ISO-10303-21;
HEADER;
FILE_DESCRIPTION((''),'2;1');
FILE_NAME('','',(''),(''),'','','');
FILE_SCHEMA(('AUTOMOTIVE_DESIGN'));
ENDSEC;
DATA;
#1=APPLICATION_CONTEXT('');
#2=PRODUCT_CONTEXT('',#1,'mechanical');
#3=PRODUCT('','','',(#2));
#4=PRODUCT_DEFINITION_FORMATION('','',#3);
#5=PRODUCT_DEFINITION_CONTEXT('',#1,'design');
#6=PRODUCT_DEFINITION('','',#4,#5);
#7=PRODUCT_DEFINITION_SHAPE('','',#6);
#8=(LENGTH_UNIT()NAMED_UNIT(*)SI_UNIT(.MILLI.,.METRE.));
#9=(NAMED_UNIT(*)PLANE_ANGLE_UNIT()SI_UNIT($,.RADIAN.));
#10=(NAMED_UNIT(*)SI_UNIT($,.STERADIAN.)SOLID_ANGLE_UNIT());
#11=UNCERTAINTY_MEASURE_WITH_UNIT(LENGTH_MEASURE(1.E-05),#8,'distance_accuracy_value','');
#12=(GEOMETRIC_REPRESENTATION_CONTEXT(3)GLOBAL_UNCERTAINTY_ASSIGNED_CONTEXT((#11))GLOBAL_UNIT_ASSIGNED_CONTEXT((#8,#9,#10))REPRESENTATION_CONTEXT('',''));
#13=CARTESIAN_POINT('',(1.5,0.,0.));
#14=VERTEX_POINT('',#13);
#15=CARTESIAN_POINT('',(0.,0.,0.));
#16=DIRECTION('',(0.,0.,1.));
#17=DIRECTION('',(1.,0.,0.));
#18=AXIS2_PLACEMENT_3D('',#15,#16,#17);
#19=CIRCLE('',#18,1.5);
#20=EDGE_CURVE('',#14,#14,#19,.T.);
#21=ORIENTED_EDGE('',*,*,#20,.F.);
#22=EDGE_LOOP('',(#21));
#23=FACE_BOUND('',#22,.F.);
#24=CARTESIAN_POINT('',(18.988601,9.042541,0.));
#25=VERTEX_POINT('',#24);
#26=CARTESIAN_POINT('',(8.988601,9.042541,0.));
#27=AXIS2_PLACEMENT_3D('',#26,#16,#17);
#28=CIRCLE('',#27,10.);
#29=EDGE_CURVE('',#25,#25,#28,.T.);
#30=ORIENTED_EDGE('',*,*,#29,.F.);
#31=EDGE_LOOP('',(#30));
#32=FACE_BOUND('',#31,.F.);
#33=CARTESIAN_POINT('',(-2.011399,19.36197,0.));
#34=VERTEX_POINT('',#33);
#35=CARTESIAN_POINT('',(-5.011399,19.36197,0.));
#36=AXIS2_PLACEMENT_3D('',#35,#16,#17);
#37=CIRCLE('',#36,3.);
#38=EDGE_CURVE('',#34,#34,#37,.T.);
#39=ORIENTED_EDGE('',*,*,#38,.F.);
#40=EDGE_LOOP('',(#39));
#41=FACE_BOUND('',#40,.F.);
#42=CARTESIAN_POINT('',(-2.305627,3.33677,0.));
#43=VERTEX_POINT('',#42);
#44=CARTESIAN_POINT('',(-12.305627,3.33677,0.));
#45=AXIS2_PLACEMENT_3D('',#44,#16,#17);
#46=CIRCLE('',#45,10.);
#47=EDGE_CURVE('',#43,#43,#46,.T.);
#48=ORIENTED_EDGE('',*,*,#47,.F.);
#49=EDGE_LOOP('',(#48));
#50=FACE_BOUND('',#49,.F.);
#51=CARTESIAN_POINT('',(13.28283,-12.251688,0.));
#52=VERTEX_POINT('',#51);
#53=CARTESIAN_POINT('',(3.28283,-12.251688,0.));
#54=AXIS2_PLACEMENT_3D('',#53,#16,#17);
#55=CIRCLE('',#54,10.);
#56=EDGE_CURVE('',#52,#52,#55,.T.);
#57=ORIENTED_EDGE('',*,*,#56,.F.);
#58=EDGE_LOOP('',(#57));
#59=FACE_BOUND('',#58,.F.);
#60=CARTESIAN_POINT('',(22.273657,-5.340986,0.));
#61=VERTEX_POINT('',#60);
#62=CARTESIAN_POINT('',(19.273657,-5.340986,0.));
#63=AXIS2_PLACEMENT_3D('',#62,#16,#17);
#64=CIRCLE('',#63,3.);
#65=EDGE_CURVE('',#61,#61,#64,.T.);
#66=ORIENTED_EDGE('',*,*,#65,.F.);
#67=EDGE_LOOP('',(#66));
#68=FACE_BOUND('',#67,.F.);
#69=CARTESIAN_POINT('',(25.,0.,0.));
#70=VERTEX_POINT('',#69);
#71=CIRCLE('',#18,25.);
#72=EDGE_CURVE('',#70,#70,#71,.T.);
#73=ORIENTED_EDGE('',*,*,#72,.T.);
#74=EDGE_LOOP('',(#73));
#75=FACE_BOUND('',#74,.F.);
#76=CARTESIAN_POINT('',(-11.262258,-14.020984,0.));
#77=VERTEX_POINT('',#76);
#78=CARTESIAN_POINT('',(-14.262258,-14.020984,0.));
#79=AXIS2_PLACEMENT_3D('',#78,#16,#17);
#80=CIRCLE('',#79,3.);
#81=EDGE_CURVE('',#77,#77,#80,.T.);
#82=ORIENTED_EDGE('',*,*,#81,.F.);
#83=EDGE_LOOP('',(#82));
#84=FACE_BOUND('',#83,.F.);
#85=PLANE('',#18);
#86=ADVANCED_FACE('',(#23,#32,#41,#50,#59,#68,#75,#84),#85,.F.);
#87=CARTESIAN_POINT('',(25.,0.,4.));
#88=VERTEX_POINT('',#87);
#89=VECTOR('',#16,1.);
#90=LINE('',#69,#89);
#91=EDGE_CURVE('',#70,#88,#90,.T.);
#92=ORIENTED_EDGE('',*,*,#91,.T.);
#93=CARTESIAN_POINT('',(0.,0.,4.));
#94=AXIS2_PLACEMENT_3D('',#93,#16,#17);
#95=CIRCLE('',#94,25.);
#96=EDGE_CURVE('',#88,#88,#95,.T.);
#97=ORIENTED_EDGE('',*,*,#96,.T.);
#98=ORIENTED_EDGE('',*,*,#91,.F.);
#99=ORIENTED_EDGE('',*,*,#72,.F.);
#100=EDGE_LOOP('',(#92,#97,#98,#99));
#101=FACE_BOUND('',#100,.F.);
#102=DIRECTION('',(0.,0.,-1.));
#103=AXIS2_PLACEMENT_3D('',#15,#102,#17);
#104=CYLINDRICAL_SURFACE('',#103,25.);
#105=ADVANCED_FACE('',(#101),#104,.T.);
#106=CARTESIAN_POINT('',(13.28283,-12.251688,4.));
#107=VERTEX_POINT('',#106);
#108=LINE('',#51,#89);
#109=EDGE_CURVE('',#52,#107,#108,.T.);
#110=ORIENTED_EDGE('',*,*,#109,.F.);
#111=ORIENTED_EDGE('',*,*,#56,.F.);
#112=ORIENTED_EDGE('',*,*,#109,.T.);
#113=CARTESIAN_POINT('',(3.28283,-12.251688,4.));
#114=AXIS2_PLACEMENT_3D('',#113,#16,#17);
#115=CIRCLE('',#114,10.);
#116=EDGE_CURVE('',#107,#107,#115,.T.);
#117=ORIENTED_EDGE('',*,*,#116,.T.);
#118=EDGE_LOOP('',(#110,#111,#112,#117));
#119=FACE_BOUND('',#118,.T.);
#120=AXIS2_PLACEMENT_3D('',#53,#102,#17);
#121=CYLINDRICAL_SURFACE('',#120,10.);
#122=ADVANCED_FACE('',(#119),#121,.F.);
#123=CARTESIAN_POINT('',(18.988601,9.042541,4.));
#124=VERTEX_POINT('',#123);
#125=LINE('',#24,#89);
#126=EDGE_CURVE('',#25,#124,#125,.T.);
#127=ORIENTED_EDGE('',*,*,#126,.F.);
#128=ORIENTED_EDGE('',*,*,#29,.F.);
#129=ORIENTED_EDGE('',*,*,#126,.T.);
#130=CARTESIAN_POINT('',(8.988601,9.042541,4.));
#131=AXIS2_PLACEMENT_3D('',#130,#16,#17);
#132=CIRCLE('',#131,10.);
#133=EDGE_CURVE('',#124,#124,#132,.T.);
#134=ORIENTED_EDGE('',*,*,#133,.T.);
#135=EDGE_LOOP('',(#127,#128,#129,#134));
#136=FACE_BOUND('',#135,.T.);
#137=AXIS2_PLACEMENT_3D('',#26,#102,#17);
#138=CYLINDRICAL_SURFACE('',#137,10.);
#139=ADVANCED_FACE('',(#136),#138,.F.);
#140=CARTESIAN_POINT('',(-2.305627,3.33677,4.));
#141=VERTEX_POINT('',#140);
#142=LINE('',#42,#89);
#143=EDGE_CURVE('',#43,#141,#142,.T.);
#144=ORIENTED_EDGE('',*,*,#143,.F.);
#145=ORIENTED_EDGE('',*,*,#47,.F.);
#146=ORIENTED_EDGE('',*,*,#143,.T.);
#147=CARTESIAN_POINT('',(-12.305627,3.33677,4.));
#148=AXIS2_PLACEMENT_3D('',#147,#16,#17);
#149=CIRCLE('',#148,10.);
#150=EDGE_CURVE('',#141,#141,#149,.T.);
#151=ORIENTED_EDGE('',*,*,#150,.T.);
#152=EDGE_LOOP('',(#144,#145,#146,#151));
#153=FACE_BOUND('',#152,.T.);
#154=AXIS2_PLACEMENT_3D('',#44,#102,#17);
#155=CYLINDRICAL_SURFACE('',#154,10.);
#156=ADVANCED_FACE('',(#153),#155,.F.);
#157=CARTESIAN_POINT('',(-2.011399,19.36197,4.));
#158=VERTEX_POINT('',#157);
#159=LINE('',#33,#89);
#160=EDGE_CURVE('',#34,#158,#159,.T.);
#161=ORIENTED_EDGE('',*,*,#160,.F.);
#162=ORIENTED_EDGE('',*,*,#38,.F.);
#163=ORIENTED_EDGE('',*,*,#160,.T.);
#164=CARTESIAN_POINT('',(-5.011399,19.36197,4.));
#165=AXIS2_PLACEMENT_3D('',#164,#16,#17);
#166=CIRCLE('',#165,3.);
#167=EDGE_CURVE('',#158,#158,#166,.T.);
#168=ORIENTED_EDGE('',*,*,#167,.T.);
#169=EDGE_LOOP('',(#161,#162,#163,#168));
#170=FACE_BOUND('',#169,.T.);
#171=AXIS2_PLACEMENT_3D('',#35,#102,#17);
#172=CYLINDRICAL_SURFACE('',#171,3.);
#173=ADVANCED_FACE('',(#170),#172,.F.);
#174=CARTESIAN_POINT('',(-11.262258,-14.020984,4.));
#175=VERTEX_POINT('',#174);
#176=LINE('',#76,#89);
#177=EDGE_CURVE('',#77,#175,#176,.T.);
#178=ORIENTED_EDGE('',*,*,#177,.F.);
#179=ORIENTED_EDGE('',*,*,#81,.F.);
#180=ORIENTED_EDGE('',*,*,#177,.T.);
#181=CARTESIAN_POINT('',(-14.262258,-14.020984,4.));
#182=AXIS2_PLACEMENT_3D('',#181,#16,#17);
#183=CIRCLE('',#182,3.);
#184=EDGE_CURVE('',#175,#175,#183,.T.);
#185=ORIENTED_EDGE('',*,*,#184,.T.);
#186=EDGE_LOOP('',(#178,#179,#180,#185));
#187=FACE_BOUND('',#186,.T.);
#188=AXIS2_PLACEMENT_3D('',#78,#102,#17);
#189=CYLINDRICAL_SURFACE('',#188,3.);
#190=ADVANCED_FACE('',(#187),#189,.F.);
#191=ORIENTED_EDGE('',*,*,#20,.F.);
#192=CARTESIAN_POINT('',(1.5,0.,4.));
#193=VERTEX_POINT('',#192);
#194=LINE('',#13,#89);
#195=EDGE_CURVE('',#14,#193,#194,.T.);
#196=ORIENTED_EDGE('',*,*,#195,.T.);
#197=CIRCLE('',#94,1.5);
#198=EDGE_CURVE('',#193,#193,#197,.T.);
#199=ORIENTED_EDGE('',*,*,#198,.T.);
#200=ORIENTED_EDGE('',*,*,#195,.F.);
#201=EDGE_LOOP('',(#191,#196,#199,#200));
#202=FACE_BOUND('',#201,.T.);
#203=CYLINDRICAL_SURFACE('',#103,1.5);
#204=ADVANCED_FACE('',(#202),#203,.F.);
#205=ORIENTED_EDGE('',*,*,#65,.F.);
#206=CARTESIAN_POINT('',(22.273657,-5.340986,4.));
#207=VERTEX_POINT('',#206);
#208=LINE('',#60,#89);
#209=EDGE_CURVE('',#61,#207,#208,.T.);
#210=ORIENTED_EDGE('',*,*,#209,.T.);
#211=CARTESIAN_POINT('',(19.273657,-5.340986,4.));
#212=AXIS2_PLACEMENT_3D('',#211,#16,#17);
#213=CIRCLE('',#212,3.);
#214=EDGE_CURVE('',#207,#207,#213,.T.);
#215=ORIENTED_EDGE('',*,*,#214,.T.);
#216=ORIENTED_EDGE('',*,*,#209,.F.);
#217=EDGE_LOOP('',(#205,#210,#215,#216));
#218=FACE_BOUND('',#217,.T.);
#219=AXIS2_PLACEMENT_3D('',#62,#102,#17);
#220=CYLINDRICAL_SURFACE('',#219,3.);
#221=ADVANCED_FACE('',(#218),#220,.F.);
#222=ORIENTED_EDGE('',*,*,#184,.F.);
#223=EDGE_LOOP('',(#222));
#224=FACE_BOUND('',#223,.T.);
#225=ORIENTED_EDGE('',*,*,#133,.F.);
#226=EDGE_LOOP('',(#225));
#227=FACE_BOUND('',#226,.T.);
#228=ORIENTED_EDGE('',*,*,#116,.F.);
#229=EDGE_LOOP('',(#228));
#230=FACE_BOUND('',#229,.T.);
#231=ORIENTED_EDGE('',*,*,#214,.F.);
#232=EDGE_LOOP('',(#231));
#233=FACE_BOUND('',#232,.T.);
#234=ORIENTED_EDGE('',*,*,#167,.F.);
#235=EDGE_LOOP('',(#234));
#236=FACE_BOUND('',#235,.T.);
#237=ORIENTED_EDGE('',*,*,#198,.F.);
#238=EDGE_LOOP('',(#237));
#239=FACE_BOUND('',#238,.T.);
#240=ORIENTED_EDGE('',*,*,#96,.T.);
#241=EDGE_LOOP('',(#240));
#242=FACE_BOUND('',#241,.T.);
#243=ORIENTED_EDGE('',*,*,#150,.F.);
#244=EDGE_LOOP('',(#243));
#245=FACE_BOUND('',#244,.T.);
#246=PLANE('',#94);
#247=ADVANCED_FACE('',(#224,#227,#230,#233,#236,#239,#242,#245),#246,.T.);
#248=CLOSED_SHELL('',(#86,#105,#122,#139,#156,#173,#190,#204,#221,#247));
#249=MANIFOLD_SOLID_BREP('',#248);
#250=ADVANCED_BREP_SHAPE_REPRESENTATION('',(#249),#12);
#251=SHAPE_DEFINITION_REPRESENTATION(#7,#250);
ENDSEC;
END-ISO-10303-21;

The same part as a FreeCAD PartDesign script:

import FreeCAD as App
import Part
import Sketcher
from FreeCAD import Vector

doc = App.newDocument("Part")
body = doc.addObject("PartDesign::Body", "Body")

# Sketch on XY plane
sketch1 = body.newObject("Sketcher::SketchObject", "Sketch")
sketch1.AttachmentSupport = (doc.getObject("XY_Plane"), [""])
sketch1.MapMode = "FlatFace"
sketch1.addGeometry(Part.Circle(Vector(0, 0, 0), Vector(0, 0, 1), 25), False)
sketch1.addGeometry(Part.Circle(Vector(-14.3, -14, 0), Vector(0, 0, 1), 3), False)
sketch1.addGeometry(Part.Circle(Vector(3.3, -12.3, 0), Vector(0, 0, 1), 10), False)
sketch1.addGeometry(Part.Circle(Vector(0, 0, 0), Vector(0, 0, 1), 1.5), False)
sketch1.addGeometry(Part.Circle(Vector(19.3, -5.3, 0), Vector(0, 0, 1), 3), False)
sketch1.addGeometry(Part.Circle(Vector(-12.3, 3.3, 0), Vector(0, 0, 1), 10), False)
sketch1.addGeometry(Part.Circle(Vector(-5, 19.4, 0), Vector(0, 0, 1), 3), False)
sketch1.addGeometry(Part.Circle(Vector(9, 9, 0), Vector(0, 0, 1), 10), False)
sketch1.addConstraint(Sketcher.Constraint("Coincident", 0, 3, -1, 1))
sketch1.addConstraint(Sketcher.Constraint("Coincident", 3, 3, -1, 1))
sketch1.addConstraint(Sketcher.Constraint("Equal", 1, 4))
sketch1.addConstraint(Sketcher.Constraint("Equal", 2, 5))
sketch1.addConstraint(Sketcher.Constraint("Equal", 4, 6))
sketch1.addConstraint(Sketcher.Constraint("Equal", 5, 7))
sketch1.addConstraint(Sketcher.Constraint("Diameter", 0, 50.0))
sketch1.addConstraint(Sketcher.Constraint("Diameter", 1, 6.0))
sketch1.addConstraint(Sketcher.Constraint("Diameter", 2, 20.0))
sketch1.addConstraint(Sketcher.Constraint("Diameter", 3, 3.0))
sketch1.addConstraint(Sketcher.Constraint("DistanceX", 6, 3, 7, 3, 14.0))
sketch1.addConstraint(Sketcher.Constraint("DistanceY", 1, 3, 4, 3, 8.679998))
sketch1.addConstraint(Sketcher.Constraint("DistanceX", 6, 3, -1, 1, 5.011399))
sketch1.addConstraint(Sketcher.Constraint("DistanceY", 2, 3, 4, 3, 6.910702))
sketch1.addConstraint(Sketcher.Constraint("DistanceY", 5, 3, 6, 3, 16.0252))
sketch1.addConstraint(Sketcher.Constraint("DistanceX", -1, 1, 2, 3, 3.28283))
sketch1.addConstraint(Sketcher.Constraint("DistanceY", -1, 1, 5, 3, 3.33677))
sketch1.addConstraint(Sketcher.Constraint("DistanceY", -1, 1, 7, 3, 9.042541))
sketch1.addConstraint(Sketcher.Constraint("DistanceX", 1, 3, 2, 3, 17.545088))
sketch1.addConstraint(Sketcher.Constraint("DistanceX", 1, 3, 5, 3, 1.956631))
sketch1.addConstraint(Sketcher.Constraint("DistanceY", 2, 3, 6, 3, 31.613658))
sketch1.addConstraint(Sketcher.Constraint("DistanceX", -1, 1, 4, 3, 19.273657))
pad1 = body.newObject("PartDesign::Pad", "Pad")
pad1.Profile = sketch1
pad1.Length = 4

doc.recompute()
